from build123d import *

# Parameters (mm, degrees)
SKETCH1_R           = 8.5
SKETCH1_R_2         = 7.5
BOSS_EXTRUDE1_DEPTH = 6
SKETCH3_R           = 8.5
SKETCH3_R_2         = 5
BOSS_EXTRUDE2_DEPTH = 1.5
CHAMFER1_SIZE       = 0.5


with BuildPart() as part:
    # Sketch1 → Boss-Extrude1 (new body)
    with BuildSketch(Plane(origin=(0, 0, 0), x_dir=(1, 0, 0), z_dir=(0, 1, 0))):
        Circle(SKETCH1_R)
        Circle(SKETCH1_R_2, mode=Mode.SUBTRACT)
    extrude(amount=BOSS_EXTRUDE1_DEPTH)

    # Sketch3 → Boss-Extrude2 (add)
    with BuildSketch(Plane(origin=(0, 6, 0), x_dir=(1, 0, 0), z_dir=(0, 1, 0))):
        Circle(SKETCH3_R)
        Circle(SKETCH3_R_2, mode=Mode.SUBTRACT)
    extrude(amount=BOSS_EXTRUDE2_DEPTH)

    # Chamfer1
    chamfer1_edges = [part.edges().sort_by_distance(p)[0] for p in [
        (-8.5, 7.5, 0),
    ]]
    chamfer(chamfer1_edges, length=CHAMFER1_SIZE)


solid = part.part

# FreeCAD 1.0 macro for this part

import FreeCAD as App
import Part
import Sketcher

V = App.Vector
Q = App.Units.Quantity


def edges_at(feature, points):
    """Names of the edges that pass closest to the given points."""
    edges = feature.Shape.Edges
    near = lambda p: min(range(len(edges)), key=lambda i: edges[i].distToShape(Part.Vertex(*p))[0])
    return sorted({f"Edge{near(p) + 1}" for p in points})

doc = App.newDocument("Part")
body = doc.addObject("PartDesign::Body", "Body")

# Sketch on XZ plane
sketch1 = doc.addObject("Sketcher::SketchObject", "Sketch")
body.addObject(sketch1)
sketch1.AttachmentSupport = (doc.XZ_Plane, [""])
sketch1.MapMode = "FlatFace"
sketch1.addGeometry(Part.Circle(V(0, 0, 0), V(0, 0, 1), 8.5), False)
sketch1.addGeometry(Part.Circle(V(0, 0, 0), V(0, 0, 1), 7.5), False)
sketch1.addConstraint(Sketcher.Constraint("Coincident", 0, 3, -1, 1))
sketch1.addConstraint(Sketcher.Constraint("Coincident", 1, 3, -1, 1))
sketch1.addConstraint(Sketcher.Constraint("Diameter", 0, Q("17 mm")))
sketch1.addConstraint(Sketcher.Constraint("Diameter", 1, Q("15 mm")))
pad1 = doc.addObject("PartDesign::Pad", "Pad")
body.addObject(pad1)
pad1.Profile = sketch1
pad1.Length = 6
pad1.Reversed = True

# Sketch on XZ plane
sketch2 = doc.addObject("Sketcher::SketchObject", "Sketch001")
body.addObject(sketch2)
sketch2.AttachmentSupport = (doc.XZ_Plane, [""])
sketch2.MapMode = "FlatFace"
sketch2.AttachmentOffset = App.Placement(V(0, 0, -6), App.Rotation())
sketch2.addGeometry(Part.Circle(V(0, 0, 0), V(0, 0, 1), 8.5), False)
sketch2.addGeometry(Part.Circle(V(0, 0, 0), V(0, 0, 1), 5), False)
sketch2.addConstraint(Sketcher.Constraint("Coincident", 0, 3, -1, 1))
sketch2.addConstraint(Sketcher.Constraint("Coincident", 1, 3, -1, 1))
sketch2.addConstraint(Sketcher.Constraint("Diameter", 0, Q("17 mm")))
sketch2.addConstraint(Sketcher.Constraint("Diameter", 1, Q("10 mm")))
pad2 = doc.addObject("PartDesign::Pad", "Pad001")
body.addObject(pad2)
pad2.Profile = sketch2
pad2.Length = 1.5
pad2.Reversed = True
doc.recompute()

chamfer = doc.addObject("PartDesign::Chamfer", "Chamfer")
body.addObject(chamfer)
chamfer.Base = (pad2, edges_at(pad2, [(-8.5, 7.5, 0)]))
chamfer.Size = 0.5

doc.recompute()
